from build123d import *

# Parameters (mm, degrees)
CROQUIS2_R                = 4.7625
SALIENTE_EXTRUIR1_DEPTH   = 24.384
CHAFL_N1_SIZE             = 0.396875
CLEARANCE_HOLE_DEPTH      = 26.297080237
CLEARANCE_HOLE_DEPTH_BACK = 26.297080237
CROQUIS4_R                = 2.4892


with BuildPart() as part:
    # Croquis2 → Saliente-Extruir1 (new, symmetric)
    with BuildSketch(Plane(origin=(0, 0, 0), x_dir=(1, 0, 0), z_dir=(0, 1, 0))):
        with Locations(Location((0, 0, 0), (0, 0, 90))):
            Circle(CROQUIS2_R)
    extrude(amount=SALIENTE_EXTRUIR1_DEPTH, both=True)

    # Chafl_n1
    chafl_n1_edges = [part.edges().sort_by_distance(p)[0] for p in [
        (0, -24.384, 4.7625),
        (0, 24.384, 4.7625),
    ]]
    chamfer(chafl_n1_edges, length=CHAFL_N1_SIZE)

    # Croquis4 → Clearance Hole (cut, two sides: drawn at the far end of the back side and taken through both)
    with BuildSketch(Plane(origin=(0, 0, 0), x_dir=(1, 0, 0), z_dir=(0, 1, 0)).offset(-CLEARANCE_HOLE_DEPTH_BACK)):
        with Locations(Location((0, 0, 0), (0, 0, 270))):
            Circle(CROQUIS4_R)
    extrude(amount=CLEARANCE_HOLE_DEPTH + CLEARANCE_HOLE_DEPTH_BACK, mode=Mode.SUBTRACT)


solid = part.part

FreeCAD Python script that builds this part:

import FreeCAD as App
import Part
import Sketcher
from FreeCAD import Vector
Q = App.Units.Quantity


def edges_at(feature, points):
    """Names of the edges that pass closest to the given points."""
    edges = feature.Shape.Edges
    near = lambda p: min(range(len(edges)), key=lambda i: edges[i].distToShape(Part.Vertex(*p))[0])
    return sorted({f"Edge{near(p) + 1}" for p in points})

doc = App.newDocument("Part")
params = doc.addObject("Spreadsheet::Sheet", "Params")
for row, (alias, value) in enumerate([
    ("sketch1_diameter", "0.375 in"),
    ("pad1_length", "1.92 in"),
    ("chamfer_size", "0.015625 in"),
    ("sketch2_diameter", "0.196 in"),
], start=1):
    params.set(f"A{row}", alias)
    params.set(f"B{row}", "=" + value)
    params.setAlias(f"B{row}", alias)

body = doc.addObject("PartDesign::Body", "Body")

# Sketch on XZ plane
sketch1 = body.newObject("Sketcher::SketchObject", "Sketch")
sketch1.AttachmentSupport = (doc.getObject("XZ_Plane"), [""])
sketch1.MapMode = "FlatFace"
sketch1.addGeometry(Part.Circle(Vector(0, 0, 0), Vector(0, 0, 1), 4.7625), False)
sketch1.addConstraint(Sketcher.Constraint("Coincident", 0, 3, -1, 1))
sketch1.addConstraint(Sketcher.Constraint("Diameter", 0, Q("0.375 in")))
sketch1.setExpression("Constraints[1]", "Params.sketch1_diameter")
pad1 = body.newObject("PartDesign::Pad", "Pad")
pad1.Profile = sketch1
pad1.setExpression("Length", "Params.pad1_length")
pad1.Midplane = True
doc.recompute()

chamfer = body.newObject("PartDesign::Chamfer", "Chamfer")
chamfer.Base = (pad1, edges_at(pad1, [(0, -24.384, 4.763), (0, 24.384, 4.763)]))
chamfer.setExpression("Size", "Params.chamfer_size")

# Sketch on XZ plane
sketch2 = body.newObject("Sketcher::SketchObject", "Sketch001")
sketch2.AttachmentSupport = (doc.getObject("XZ_Plane"), [""])
sketch2.MapMode = "FlatFace"
sketch2.addGeometry(Part.Circle(Vector(0, 0, 0), Vector(0, 0, 1), 2.4892), False)
sketch2.addConstraint(Sketcher.Constraint("Coincident", 0, 3, -1, 1))
sketch2.addConstraint(Sketcher.Constraint("Diameter", 0, Q("0.196 in")))
sketch2.setExpression("Constraints[1]", "Params.sketch2_diameter")
pocket1 = body.newObject("PartDesign::Pocket", "Pocket")
pocket1.Profile = sketch2
pocket1.Type = "ThroughAll"
pocket1.Midplane = True

doc.recompute()
